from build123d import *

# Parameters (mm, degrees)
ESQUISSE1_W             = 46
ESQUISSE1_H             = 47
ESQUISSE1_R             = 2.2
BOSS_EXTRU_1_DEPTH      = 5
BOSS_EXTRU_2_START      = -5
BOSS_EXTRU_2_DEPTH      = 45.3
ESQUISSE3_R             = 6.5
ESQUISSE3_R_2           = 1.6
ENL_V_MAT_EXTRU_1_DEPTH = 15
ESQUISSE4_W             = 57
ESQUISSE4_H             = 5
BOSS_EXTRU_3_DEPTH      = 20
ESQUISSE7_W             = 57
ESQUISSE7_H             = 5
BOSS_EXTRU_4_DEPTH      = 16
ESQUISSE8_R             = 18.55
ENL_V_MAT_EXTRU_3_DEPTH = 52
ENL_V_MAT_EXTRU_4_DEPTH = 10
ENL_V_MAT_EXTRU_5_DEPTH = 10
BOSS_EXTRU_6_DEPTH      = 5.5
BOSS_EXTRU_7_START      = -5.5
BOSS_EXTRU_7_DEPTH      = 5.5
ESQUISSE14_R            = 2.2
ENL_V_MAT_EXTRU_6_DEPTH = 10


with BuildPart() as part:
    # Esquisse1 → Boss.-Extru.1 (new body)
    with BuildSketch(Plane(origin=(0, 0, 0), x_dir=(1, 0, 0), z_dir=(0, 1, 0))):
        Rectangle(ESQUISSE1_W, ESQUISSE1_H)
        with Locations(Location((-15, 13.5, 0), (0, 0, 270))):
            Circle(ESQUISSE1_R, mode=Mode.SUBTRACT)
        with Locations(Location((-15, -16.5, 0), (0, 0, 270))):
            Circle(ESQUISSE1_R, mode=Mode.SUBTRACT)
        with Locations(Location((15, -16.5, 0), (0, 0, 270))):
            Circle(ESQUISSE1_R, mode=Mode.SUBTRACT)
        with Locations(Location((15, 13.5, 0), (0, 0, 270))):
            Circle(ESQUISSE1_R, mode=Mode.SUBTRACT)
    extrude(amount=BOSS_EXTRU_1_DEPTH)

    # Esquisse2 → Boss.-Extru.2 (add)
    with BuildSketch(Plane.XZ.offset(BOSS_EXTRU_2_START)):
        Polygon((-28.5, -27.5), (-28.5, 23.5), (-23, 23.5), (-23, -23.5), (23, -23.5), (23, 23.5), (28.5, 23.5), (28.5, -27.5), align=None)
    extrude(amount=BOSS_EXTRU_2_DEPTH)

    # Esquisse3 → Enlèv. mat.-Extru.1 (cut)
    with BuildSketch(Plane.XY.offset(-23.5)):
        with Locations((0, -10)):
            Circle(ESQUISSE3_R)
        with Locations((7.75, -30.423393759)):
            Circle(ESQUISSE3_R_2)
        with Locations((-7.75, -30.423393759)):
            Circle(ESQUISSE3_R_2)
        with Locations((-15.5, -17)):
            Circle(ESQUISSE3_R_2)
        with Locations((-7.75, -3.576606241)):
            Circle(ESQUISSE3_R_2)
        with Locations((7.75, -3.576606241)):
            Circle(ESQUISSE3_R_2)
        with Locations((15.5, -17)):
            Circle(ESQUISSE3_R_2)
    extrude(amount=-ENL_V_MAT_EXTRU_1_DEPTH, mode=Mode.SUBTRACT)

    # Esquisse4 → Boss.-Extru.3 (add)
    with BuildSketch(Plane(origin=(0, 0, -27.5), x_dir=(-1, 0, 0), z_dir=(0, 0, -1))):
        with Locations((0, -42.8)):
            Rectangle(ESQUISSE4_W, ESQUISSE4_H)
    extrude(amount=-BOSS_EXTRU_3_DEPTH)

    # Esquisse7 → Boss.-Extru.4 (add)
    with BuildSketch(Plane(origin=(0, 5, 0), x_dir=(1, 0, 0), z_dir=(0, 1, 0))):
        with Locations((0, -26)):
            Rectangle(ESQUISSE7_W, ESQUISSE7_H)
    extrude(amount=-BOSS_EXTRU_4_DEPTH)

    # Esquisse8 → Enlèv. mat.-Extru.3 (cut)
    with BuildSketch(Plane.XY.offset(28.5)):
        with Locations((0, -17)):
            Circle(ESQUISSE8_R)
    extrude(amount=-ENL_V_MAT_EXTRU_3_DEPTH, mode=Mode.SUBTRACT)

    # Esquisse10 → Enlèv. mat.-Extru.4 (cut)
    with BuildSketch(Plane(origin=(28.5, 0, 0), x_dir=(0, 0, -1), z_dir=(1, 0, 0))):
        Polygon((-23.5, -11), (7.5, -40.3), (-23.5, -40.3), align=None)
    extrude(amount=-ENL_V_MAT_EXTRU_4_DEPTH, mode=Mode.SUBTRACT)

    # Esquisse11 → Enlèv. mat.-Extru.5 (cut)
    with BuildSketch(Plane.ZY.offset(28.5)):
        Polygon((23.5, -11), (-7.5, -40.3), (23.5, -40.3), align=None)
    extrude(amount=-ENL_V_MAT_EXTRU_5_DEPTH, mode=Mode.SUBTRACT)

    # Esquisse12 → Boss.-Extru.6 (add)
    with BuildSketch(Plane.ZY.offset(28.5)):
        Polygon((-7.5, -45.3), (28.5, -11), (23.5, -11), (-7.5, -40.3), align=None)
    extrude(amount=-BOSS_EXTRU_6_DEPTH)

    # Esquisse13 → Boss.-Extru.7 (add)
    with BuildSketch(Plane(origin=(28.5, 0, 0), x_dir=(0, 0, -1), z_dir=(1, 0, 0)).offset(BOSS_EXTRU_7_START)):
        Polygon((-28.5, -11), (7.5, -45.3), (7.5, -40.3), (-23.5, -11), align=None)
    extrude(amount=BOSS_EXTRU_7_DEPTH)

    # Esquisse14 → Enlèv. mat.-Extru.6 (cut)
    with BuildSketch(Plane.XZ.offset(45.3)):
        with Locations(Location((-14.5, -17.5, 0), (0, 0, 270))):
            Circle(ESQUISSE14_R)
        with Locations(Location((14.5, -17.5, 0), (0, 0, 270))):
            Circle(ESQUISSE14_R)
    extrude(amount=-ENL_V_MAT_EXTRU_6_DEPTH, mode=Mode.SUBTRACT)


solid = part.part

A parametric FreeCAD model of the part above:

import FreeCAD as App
import Part
import Sketcher
Q = App.Units.Quantity

doc = App.newDocument("Part")
body = doc.addObject("PartDesign::Body", "Body")

# Sketch on XZ plane
sketch1 = doc.addObject("Sketcher::SketchObject", "Sketch")
body.addObject(sketch1)
sketch1.AttachmentSupport = (doc.XZ_Plane, [""])
sketch1.MapMode = "FlatFace"
sketch1.addGeometry(Part.LineSegment(App.Vector(-23, -23.5, 0), App.Vector(-23, 23.5, 0)), False)
sketch1.addGeometry(Part.LineSegment(App.Vector(-23, 23.5, 0), App.Vector(23, 23.5, 0)), False)
sketch1.addGeometry(Part.LineSegment(App.Vector(23, 23.5, 0), App.Vector(23, -23.5, 0)), False)
sketch1.addGeometry(Part.LineSegment(App.Vector(23, -23.5, 0), App.Vector(-23, -23.5, 0)), False)
sketch1.addGeometry(Part.Circle(App.Vector(-15, 16.5, 0), App.Vector(0, 0, 1), 2.2), False)
sketch1.addGeometry(Part.Circle(App.Vector(15, 16.5, 0), App.Vector(0, 0, 1), 2.2), False)
sketch1.addGeometry(Part.Circle(App.Vector(-15, -13.5, 0), App.Vector(0, 0, 1), 2.2), False)
sketch1.addGeometry(Part.Circle(App.Vector(15, -13.5, 0), App.Vector(0, 0, 1), 2.2), False)
sketch1.addConstraint(Sketcher.Constraint("Coincident", 0, 2, 1, 1))
sketch1.addConstraint(Sketcher.Constraint("Coincident", 1, 2, 2, 1))
sketch1.addConstraint(Sketcher.Constraint("Coincident", 2, 2, 3, 1))
sketch1.addConstraint(Sketcher.Constraint("Coincident", 3, 2, 0, 1))
sketch1.addConstraint(Sketcher.Constraint("Vertical", 0))
sketch1.addConstraint(Sketcher.Constraint("Horizontal", 1))
sketch1.addConstraint(Sketcher.Constraint("Vertical", 2))
sketch1.addConstraint(Sketcher.Constraint("Horizontal", 3))
sketch1.addConstraint(Sketcher.Constraint("Equal", 4, 5))
sketch1.addConstraint(Sketcher.Constraint("Equal", 5, 6))
sketch1.addConstraint(Sketcher.Constraint("Equal", 6, 7))
sketch1.addConstraint(Sketcher.Constraint("Symmetric", 0, 2, 2, 2, -1, 1))
sketch1.addConstraint(Sketcher.Constraint("Symmetric", 4, 3, 5, 3, -2))
sketch1.addConstraint(Sketcher.Constraint("Symmetric", 6, 3, 7, 3, -2))
sketch1.addConstraint(Sketcher.Constraint("Vertical", 4, 3, 6, 3))
sketch1.addConstraint(Sketcher.Constraint("Diameter", 4, Q("4.4 mm")))
sketch1.addConstraint(Sketcher.Constraint("DistanceX", 1, 1, 1, 2, Q("46 mm")))
sketch1.addConstraint(Sketcher.Constraint("DistanceY", 0, 1, 0, 2, Q("47 mm")))
sketch1.addConstraint(Sketcher.Constraint("DistanceX", 4, 3, -1, 1, Q("15 mm")))
sketch1.addConstraint(Sketcher.Constraint("DistanceY", 6, 3, 4, 3, Q("30 mm")))
sketch1.addConstraint(Sketcher.Constraint("DistanceY", 4, 3, 0, 2, Q("7 mm")))
pad1 = doc.addObject("PartDesign::Pad", "Pad")
body.addObject(pad1)
pad1.Profile = sketch1
pad1.Length = 5
pad1.Reversed = True

# Sketch on XZ plane
sketch2 = doc.addObject("Sketcher::SketchObject", "Sketch001")
body.addObject(sketch2)
sketch2.AttachmentSupport = (doc.XZ_Plane, [""])
sketch2.MapMode = "FlatFace"
sketch2.AttachmentOffset = App.Placement(App.Vector(0, 0, -5), App.Rotation())
sketch2.addGeometry(Part.LineSegment(App.Vector(-28.5, 23.5, 0), App.Vector(-28.5, -27.5, 0)), False)
sketch2.addGeometry(Part.LineSegment(App.Vector(-28.5, -27.5, 0), App.Vector(28.5, -27.5, 0)), False)
sketch2.addGeometry(Part.LineSegment(App.Vector(28.5, -27.5, 0), App.Vector(28.5, 23.5, 0)), False)
sketch2.addGeometry(Part.LineSegment(App.Vector(28.5, 23.5, 0), App.Vector(23, 23.5, 0)), False)
sketch2.addGeometry(Part.LineSegment(App.Vector(23, 23.5, 0), App.Vector(23, -23.5, 0)), False)
sketch2.addGeometry(Part.LineSegment(App.Vector(23, -23.5, 0), App.Vector(-23, -23.5, 0)), False)
sketch2.addGeometry(Part.LineSegment(App.Vector(-23, -23.5, 0), App.Vector(-23, 23.5, 0)), False)
sketch2.addGeometry(Part.LineSegment(App.Vector(-23, 23.5, 0), App.Vector(-28.5, 23.5, 0)), False)
sketch2.addConstraint(Sketcher.Constraint("Coincident", 0, 2, 1, 1))
sketch2.addConstraint(Sketcher.Constraint("Coincident", 1, 2, 2, 1))
sketch2.addConstraint(Sketcher.Constraint("Coincident", 2, 2, 3, 1))
sketch2.addConstraint(Sketcher.Constraint("Coincident", 3, 2, 4, 1))
sketch2.addConstraint(Sketcher.Constraint("Coincident", 4, 2, 5, 1))
sketch2.addConstraint(Sketcher.Constraint("Coincident", 5, 2, 6, 1))
sketch2.addConstraint(Sketcher.Constraint("Coincident", 6, 2, 7, 1))
sketch2.addConstraint(Sketcher.Constraint("Coincident", 7, 2, 0, 1))
sketch2.addConstraint(Sketcher.Constraint("Vertical", 0))
sketch2.addConstraint(Sketcher.Constraint("Horizontal", 1))
sketch2.addConstraint(Sketcher.Constraint("Vertical", 2))
sketch2.addConstraint(Sketcher.Constraint("Horizontal", 3))
sketch2.addConstraint(Sketcher.Constraint("Vertical", 4))
sketch2.addConstraint(Sketcher.Constraint("Horizontal", 5))
sketch2.addConstraint(Sketcher.Constraint("Vertical", 6))
sketch2.addConstraint(Sketcher.Constraint("Horizontal", 7))
sketch2.addConstraint(Sketcher.Constraint("Symmetric", 3, 2, 5, 2, -1, 1))
sketch2.addConstraint(Sketcher.Constraint("Symmetric", 2, 2, 7, 2, -2))
sketch2.addConstraint(Sketcher.Constraint("DistanceX", 1, 1, 1, 2, Q("57 mm")))
sketch2.addConstraint(Sketcher.Constraint("DistanceX", 5, 2, 5, 1, Q("46 mm")))
sketch2.addConstraint(Sketcher.Constraint("DistanceY", 0, 2, 0, 1, Q("51 mm")))
sketch2.addConstraint(Sketcher.Constraint("DistanceY", 4, 2, 4, 1, Q("47 mm")))
pad2 = doc.addObject("PartDesign::Pad", "Pad001")
body.addObject(pad2)
pad2.Profile = sketch2
pad2.Length = 45.3

# Sketch on XY plane
sketch3 = doc.addObject("Sketcher::SketchObject", "Sketch002")
body.addObject(sketch3)
sketch3.AttachmentSupport = (doc.XY_Plane, [""])
sketch3.MapMode = "FlatFace"
sketch3.AttachmentOffset = App.Placement(App.Vector(0, 0, -23.5), App.Rotation())
sketch3.addGeometry(Part.Circle(App.Vector(0, -10, 0), App.Vector(0, 0, 1), 6.5), False)
sketch3.addGeometry(Part.Circle(App.Vector(7.75, -30.423394, 0), App.Vector(0, 0, 1), 1.6), False)
sketch3.addGeometry(Part.Circle(App.Vector(-7.75, -30.423394, 0), App.Vector(0, 0, 1), 1.6), False)
sketch3.addGeometry(Part.Circle(App.Vector(-15.5, -17, 0), App.Vector(0, 0, 1), 1.6), False)
sketch3.addGeometry(Part.Circle(App.Vector(-7.75, -3.576606, 0), App.Vector(0, 0, 1), 1.6), False)
sketch3.addGeometry(Part.Circle(App.Vector(7.75, -3.576606, 0), App.Vector(0, 0, 1), 1.6), False)
sketch3.addGeometry(Part.Circle(App.Vector(15.5, -17, 0), App.Vector(0, 0, 1), 1.6), False)
sketch3.addConstraint(Sketcher.Constraint("Equal", 1, 2))
sketch3.addConstraint(Sketcher.Constraint("Equal", 2, 3))
sketch3.addConstraint(Sketcher.Constraint("Equal", 3, 4))
sketch3.addConstraint(Sketcher.Constraint("Equal", 4, 5))
sketch3.addConstraint(Sketcher.Constraint("Equal", 5, 6))
sketch3.addConstraint(Sketcher.Constraint("Symmetric", 1, 3, 2, 3, -2))
sketch3.addConstraint(Sketcher.Constraint("Symmetric", 4, 3, 5, 3, -2))
sketch3.addConstraint(Sketcher.Constraint("Symmetric", 3, 3, 6, 3, -2))
sketch3.addConstraint(Sketcher.Constraint("PointOnObject", 0, 3, -2))
sketch3.addConstraint(Sketcher.Constraint("Vertical", 2, 3, 4, 3))
sketch3.addConstraint(Sketcher.Constraint("Diameter", 0, Q("13 mm")))
sketch3.addConstraint(Sketcher.Constraint("Diameter", 1, Q("3.2 mm")))
sketch3.addConstraint(Sketcher.Constraint("DistanceY", 0, 3, -1, 1, Q("10 mm")))
sketch3.addConstraint(Sketcher.Constraint("DistanceY", 3, 3, -1, 1, Q("17 mm")))
sketch3.addConstraint(Sketcher.Constraint("DistanceX", 3, 3, -1, 1, Q("15.5 mm")))
sketch3.addConstraint(Sketcher.Constraint("DistanceX", 2, 3, 1, 3, Q("15.5 mm")))
sketch3.addConstraint(Sketcher.Constraint("DistanceY", 1, 3, -1, 1, Q("30.423394 mm")))
sketch3.addConstraint(Sketcher.Constraint("DistanceY", 4, 3, -1, 1, Q("3.576606 mm")))
pocket1 = doc.addObject("PartDesign::Pocket", "Pocket")
body.addObject(pocket1)
pocket1.Profile = sketch3
pocket1.Length = 15

# Sketch on XY plane
sketch4 = doc.addObject("Sketcher::SketchObject", "Sketch003")
body.addObject(sketch4)
sketch4.AttachmentSupport = (doc.XY_Plane, [""])
sketch4.MapMode = "FlatFace"
sketch4.AttachmentOffset = App.Placement(App.Vector(0, 0, -27.5), App.Rotation())
sketch4.addGeometry(Part.LineSegment(App.Vector(28.5, -40.3, 0), App.Vector(28.5, -45.3, 0)), False)
sketch4.addGeometry(Part.LineSegment(App.Vector(28.5, -45.3, 0), App.Vector(-28.5, -45.3, 0)), False)
sketch4.addGeometry(Part.LineSegment(App.Vector(-28.5, -45.3, 0), App.Vector(-28.5, -40.3, 0)), False)
sketch4.addGeometry(Part.LineSegment(App.Vector(-28.5, -40.3, 0), App.Vector(28.5, -40.3, 0)), False)
sketch4.addConstraint(Sketcher.Constraint("Coincident", 0, 2, 1, 1))
sketch4.addConstraint(Sketcher.Constraint("Coincident", 1, 2, 2, 1))
sketch4.addConstraint(Sketcher.Constraint("Coincident", 2, 2, 3, 1))
sketch4.addConstraint(Sketcher.Constraint("Coincident", 3, 2, 0, 1))
sketch4.addConstraint(Sketcher.Constraint("Vertical", 0))
sketch4.addConstraint(Sketcher.Constraint("Horizontal", 1))
sketch4.addConstraint(Sketcher.Constraint("Vertical", 2))
sketch4.addConstraint(Sketcher.Constraint("Horizontal", 3))
sketch4.addConstraint(Sketcher.Constraint("DistanceX", 1, 2, 1, 1, Q("57 mm")))
sketch4.addConstraint(Sketcher.Constraint("DistanceY", 0, 2, 0, 1, Q("5 mm")))
sketch4.addConstraint(Sketcher.Constraint("DistanceX", -1, 1, 0, 2, Q("28.5 mm")))
sketch4.addConstraint(Sketcher.Constraint("DistanceY", 0, 2, -1, 1, Q("45.3 mm")))
pad3 = doc.addObject("PartDesign::Pad", "Pad002")
body.addObject(pad3)
pad3.Profile = sketch4
pad3.Length = 20

# Sketch on XZ plane
sketch5 = doc.addObject("Sketcher::SketchObject", "Sketch004")
body.addObject(sketch5)
sketch5.AttachmentSupport = (doc.XZ_Plane, [""])
sketch5.MapMode = "FlatFace"
sketch5.AttachmentOffset = App.Placement(App.Vector(0, 0, -5), App.Rotation())
sketch5.addGeometry(Part.LineSegment(App.Vector(-28.5, 23.5, 0), App.Vector(-28.5, 28.5, 0)), False)
sketch5.addGeometry(Part.LineSegment(App.Vector(-28.5, 28.5, 0), App.Vector(28.5, 28.5, 0)), False)
sketch5.addGeometry(Part.LineSegment(App.Vector(28.5, 28.5, 0), App.Vector(28.5, 23.5, 0)), False)
sketch5.addGeometry(Part.LineSegment(App.Vector(28.5, 23.5, 0), App.Vector(-28.5, 23.5, 0)), False)
sketch5.addConstraint(Sketcher.Constraint("Coincident", 0, 2, 1, 1))
sketch5.addConstraint(Sketcher.Constraint("Coincident", 1, 2, 2, 1))
sketch5.addConstraint(Sketcher.Constraint("Coincident", 2, 2, 3, 1))
sketch5.addConstraint(Sketcher.Constraint("Coincident", 3, 2, 0, 1))
sketch5.addConstraint(Sketcher.Constraint("Vertical", 0))
sketch5.addConstraint(Sketcher.Constraint("Horizontal", 1))
sketch5.addConstraint(Sketcher.Constraint("Vertical", 2))
sketch5.addConstraint(Sketcher.Constraint("Horizontal", 3))
sketch5.addConstraint(Sketcher.Constraint("DistanceX", 1, 1, 1, 2, Q("57 mm")))
sketch5.addConstraint(Sketcher.Constraint("DistanceY", 0, 1, 0, 2, Q("5 mm")))
sketch5.addConstraint(Sketcher.Constraint("DistanceX", 0, 2, -1, 1, Q("28.5 mm")))
sketch5.addConstraint(Sketcher.Constraint("DistanceY", -1, 1, 0, 2, Q("28.5 mm")))
pad4 = doc.addObject("PartDesign::Pad", "Pad003")
body.addObject(pad4)
pad4.Profile = sketch5
pad4.Length = 16

# Sketch on XY plane
sketch6 = doc.addObject("Sketcher::SketchObject", "Sketch005")
body.addObject(sketch6)
sketch6.AttachmentSupport = (doc.XY_Plane, [""])
sketch6.MapMode = "FlatFace"
sketch6.AttachmentOffset = App.Placement(App.Vector(0, 0, 28.5), App.Rotation())
sketch6.addGeometry(Part.Circle(App.Vector(0, -17, 0), App.Vector(0, 0, 1), 18.55), False)
sketch6.addConstraint(Sketcher.Constraint("PointOnObject", 0, 3, -2))
sketch6.addConstraint(Sketcher.Constraint("Diameter", 0, Q("37.1 mm")))
sketch6.addConstraint(Sketcher.Constraint("DistanceY", 0, 3, -1, 1, Q("17 mm")))
pocket2 = doc.addObject("PartDesign::Pocket", "Pocket001")
body.addObject(pocket2)
pocket2.Profile = sketch6
pocket2.Length = 52

# Sketch on YZ plane
sketch7 = doc.addObject("Sketcher::SketchObject", "Sketch006")
body.addObject(sketch7)
sketch7.AttachmentSupport = (doc.YZ_Plane, [""])
sketch7.MapMode = "FlatFace"
sketch7.AttachmentOffset = App.Placement(App.Vector(0, 0, 28.5), App.Rotation())
sketch7.addGeometry(Part.LineSegment(App.Vector(-40.3, -7.5, 0), App.Vector(-11, 23.5, 0)), False)
sketch7.addGeometry(Part.LineSegment(App.Vector(-11, 23.5, 0), App.Vector(-40.3, 23.5, 0)), False)
sketch7.addGeometry(Part.LineSegment(App.Vector(-40.3, 23.5, 0), App.Vector(-40.3, -7.5, 0)), False)
sketch7.addConstraint(Sketcher.Constraint("Coincident", 0, 2, 1, 1))
sketch7.addConstraint(Sketcher.Constraint("Coincident", 1, 2, 2, 1))
sketch7.addConstraint(Sketcher.Constraint("Coincident", 2, 2, 0, 1))
sketch7.addConstraint(Sketcher.Constraint("Horizontal", 1))
sketch7.addConstraint(Sketcher.Constraint("Vertical", 2))
sketch7.addConstraint(Sketcher.Constraint("DistanceY", 2, 2, 2, 1, Q("31 mm")))
sketch7.addConstraint(Sketcher.Constraint("DistanceX", 1, 2, 1, 1, Q("29.3 mm")))
sketch7.addConstraint(Sketcher.Constraint("DistanceX", 0, 2, -1, 1, Q("11 mm")))
sketch7.addConstraint(Sketcher.Constraint("DistanceY", -1, 1, 0, 2, Q("23.5 mm")))
pocket3 = doc.addObject("PartDesign::Pocket", "Pocket002")
body.addObject(pocket3)
pocket3.Profile = sketch7
pocket3.Length = 10

# Sketch on YZ plane
sketch8 = doc.addObject("Sketcher::SketchObject", "Sketch007")
body.addObject(sketch8)
sketch8.AttachmentSupport = (doc.YZ_Plane, [""])
sketch8.MapMode = "FlatFace"
sketch8.AttachmentOffset = App.Placement(App.Vector(0, 0, -28.5), App.Rotation())
sketch8.addGeometry(Part.LineSegment(App.Vector(-11, 23.5, 0), App.Vector(-40.3, -7.5, 0)), False)
sketch8.addGeometry(Part.LineSegment(App.Vector(-40.3, -7.5, 0), App.Vector(-40.3, 23.5, 0)), False)
sketch8.addGeometry(Part.LineSegment(App.Vector(-40.3, 23.5, 0), App.Vector(-11, 23.5, 0)), False)
sketch8.addConstraint(Sketcher.Constraint("Coincident", 0, 2, 1, 1))
sketch8.addConstraint(Sketcher.Constraint("Coincident", 1, 2, 2, 1))
sketch8.addConstraint(Sketcher.Constraint("Coincident", 2, 2, 0, 1))
sketch8.addConstraint(Sketcher.Constraint("Vertical", 1))
sketch8.addConstraint(Sketcher.Constraint("Horizontal", 2))
sketch8.addConstraint(Sketcher.Constraint("DistanceY", 1, 1, 1, 2, Q("31 mm")))
sketch8.addConstraint(Sketcher.Constraint("DistanceX", 2, 1, 2, 2, Q("29.3 mm")))
sketch8.addConstraint(Sketcher.Constraint("DistanceX", 2, 2, -1, 1, Q("11 mm")))
sketch8.addConstraint(Sketcher.Constraint("DistanceY", 0, 2, -1, 1, Q("7.5 mm")))
pocket4 = doc.addObject("PartDesign::Pocket", "Pocket003")
body.addObject(pocket4)
pocket4.Profile = sketch8
pocket4.Length = 10
pocket4.Reversed = True

# Sketch on YZ plane
sketch9 = doc.addObject("Sketcher::SketchObject", "Sketch008")
body.addObject(sketch9)
sketch9.AttachmentSupport = (doc.YZ_Plane, [""])
sketch9.MapMode = "FlatFace"
sketch9.AttachmentOffset = App.Placement(App.Vector(0, 0, -28.5), App.Rotation())
sketch9.addGeometry(Part.LineSegment(App.Vector(-45.3, -7.5, 0), App.Vector(-11, 28.5, 0)), False)
sketch9.addGeometry(Part.LineSegment(App.Vector(-11, 28.5, 0), App.Vector(-11, 23.5, 0)), False)
sketch9.addGeometry(Part.LineSegment(App.Vector(-11, 23.5, 0), App.Vector(-40.3, -7.5, 0)), False)
sketch9.addGeometry(Part.LineSegment(App.Vector(-40.3, -7.5, 0), App.Vector(-45.3, -7.5, 0)), False)
sketch9.addConstraint(Sketcher.Constraint("Coincident", 0, 2, 1, 1))
sketch9.addConstraint(Sketcher.Constraint("Coincident", 1, 2, 2, 1))
sketch9.addConstraint(Sketcher.Constraint("Coincident", 2, 2, 3, 1))
sketch9.addConstraint(Sketcher.Constraint("Coincident", 3, 2, 0, 1))
sketch9.addConstraint(Sketcher.Constraint("Vertical", 1))
sketch9.addConstraint(Sketcher.Constraint("Horizontal", 3))
sketch9.addConstraint(Sketcher.Constraint("Equal", 3, 1))
sketch9.addConstraint(Sketcher.Constraint("DistanceX", 3, 2, 3, 1, Q("5 mm")))
sketch9.addConstraint(Sketcher.Constraint("DistanceX", 0, 2, -1, 1, Q("11 mm")))
sketch9.addConstraint(Sketcher.Constraint("DistanceY", 2, 2, 1, 2, Q("31 mm")))
sketch9.addConstraint(Sketcher.Constraint("DistanceY", -1, 1, 0, 2, Q("28.5 mm")))
sketch9.addConstraint(Sketcher.Constraint("DistanceX", 2, 2, -1, 1, Q("40.3 mm")))
pad5 = doc.addObject("PartDesign::Pad", "Pad004")
body.addObject(pad5)
pad5.Profile = sketch9
pad5.Length = 5.5

# Sketch on YZ plane
sketch10 = doc.addObject("Sketcher::SketchObject", "Sketch009")
body.addObject(sketch10)
sketch10.AttachmentSupport = (doc.YZ_Plane, [""])
sketch10.MapMode = "FlatFace"
sketch10.AttachmentOffset = App.Placement(App.Vector(0, 0, 23), App.Rotation())
sketch10.addGeometry(Part.LineSegment(App.Vector(-11, 28.5, 0), App.Vector(-45.3, -7.5, 0)), False)
sketch10.addGeometry(Part.LineSegment(App.Vector(-45.3, -7.5, 0), App.Vector(-40.3, -7.5, 0)), False)
sketch10.addGeometry(Part.LineSegment(App.Vector(-40.3, -7.5, 0), App.Vector(-11, 23.5, 0)), False)
sketch10.addGeometry(Part.LineSegment(App.Vector(-11, 23.5, 0), App.Vector(-11, 28.5, 0)), False)
sketch10.addConstraint(Sketcher.Constraint("Coincident", 0, 2, 1, 1))
sketch10.addConstraint(Sketcher.Constraint("Coincident", 1, 2, 2, 1))
sketch10.addConstraint(Sketcher.Constraint("Coincident", 2, 2, 3, 1))
sketch10.addConstraint(Sketcher.Constraint("Coincident", 3, 2, 0, 1))
sketch10.addConstraint(Sketcher.Constraint("Horizontal", 1))
sketch10.addConstraint(Sketcher.Constraint("Vertical", 3))
sketch10.addConstraint(Sketcher.Constraint("Equal", 1, 3))
sketch10.addConstraint(Sketcher.Constraint("DistanceX", 1, 1, 1, 2, Q("5 mm")))
sketch10.addConstraint(Sketcher.Constraint("DistanceX", 2, 2, -1, 1, Q("11 mm")))
sketch10.addConstraint(Sketcher.Constraint("DistanceY", 1, 2, 2, 2, Q("31 mm")))
sketch10.addConstraint(Sketcher.Constraint("DistanceX", 0, 2, -1, 1, Q("45.3 mm")))
sketch10.addConstraint(Sketcher.Constraint("DistanceY", 0, 2, -1, 1, Q("7.5 mm")))
pad6 = doc.addObject("PartDesign::Pad", "Pad005")
body.addObject(pad6)
pad6.Profile = sketch10
pad6.Length = 5.5

# Sketch on XZ plane
sketch11 = doc.addObject("Sketcher::SketchObject", "Sketch010")
body.addObject(sketch11)
sketch11.AttachmentSupport = (doc.XZ_Plane, [""])
sketch11.MapMode = "FlatFace"
sketch11.AttachmentOffset = App.Placement(App.Vector(0, 0, 45.3), App.Rotation())
sketch11.addGeometry(Part.Circle(App.Vector(-14.5, -17.5, 0), App.Vector(0, 0, 1), 2.2), False)
sketch11.addGeometry(Part.Circle(App.Vector(14.5, -17.5, 0), App.Vector(0, 0, 1), 2.2), False)
sketch11.addConstraint(Sketcher.Constraint("Equal", 0, 1))
sketch11.addConstraint(Sketcher.Constraint("Symmetric", 0, 3, 1, 3, -2))
sketch11.addConstraint(Sketcher.Constraint("Diameter", 0, Q("4.4 mm")))
sketch11.addConstraint(Sketcher.Constraint("DistanceX", 0, 3, 1, 3, Q("29 mm")))
sketch11.addConstraint(Sketcher.Constraint("DistanceY", 0, 3, -1, 1, Q("17.5 mm")))
pocket5 = doc.addObject("PartDesign::Pocket", "Pocket004")
body.addObject(pocket5)
pocket5.Profile = sketch11
pocket5.Length = 10

doc.recompute()
